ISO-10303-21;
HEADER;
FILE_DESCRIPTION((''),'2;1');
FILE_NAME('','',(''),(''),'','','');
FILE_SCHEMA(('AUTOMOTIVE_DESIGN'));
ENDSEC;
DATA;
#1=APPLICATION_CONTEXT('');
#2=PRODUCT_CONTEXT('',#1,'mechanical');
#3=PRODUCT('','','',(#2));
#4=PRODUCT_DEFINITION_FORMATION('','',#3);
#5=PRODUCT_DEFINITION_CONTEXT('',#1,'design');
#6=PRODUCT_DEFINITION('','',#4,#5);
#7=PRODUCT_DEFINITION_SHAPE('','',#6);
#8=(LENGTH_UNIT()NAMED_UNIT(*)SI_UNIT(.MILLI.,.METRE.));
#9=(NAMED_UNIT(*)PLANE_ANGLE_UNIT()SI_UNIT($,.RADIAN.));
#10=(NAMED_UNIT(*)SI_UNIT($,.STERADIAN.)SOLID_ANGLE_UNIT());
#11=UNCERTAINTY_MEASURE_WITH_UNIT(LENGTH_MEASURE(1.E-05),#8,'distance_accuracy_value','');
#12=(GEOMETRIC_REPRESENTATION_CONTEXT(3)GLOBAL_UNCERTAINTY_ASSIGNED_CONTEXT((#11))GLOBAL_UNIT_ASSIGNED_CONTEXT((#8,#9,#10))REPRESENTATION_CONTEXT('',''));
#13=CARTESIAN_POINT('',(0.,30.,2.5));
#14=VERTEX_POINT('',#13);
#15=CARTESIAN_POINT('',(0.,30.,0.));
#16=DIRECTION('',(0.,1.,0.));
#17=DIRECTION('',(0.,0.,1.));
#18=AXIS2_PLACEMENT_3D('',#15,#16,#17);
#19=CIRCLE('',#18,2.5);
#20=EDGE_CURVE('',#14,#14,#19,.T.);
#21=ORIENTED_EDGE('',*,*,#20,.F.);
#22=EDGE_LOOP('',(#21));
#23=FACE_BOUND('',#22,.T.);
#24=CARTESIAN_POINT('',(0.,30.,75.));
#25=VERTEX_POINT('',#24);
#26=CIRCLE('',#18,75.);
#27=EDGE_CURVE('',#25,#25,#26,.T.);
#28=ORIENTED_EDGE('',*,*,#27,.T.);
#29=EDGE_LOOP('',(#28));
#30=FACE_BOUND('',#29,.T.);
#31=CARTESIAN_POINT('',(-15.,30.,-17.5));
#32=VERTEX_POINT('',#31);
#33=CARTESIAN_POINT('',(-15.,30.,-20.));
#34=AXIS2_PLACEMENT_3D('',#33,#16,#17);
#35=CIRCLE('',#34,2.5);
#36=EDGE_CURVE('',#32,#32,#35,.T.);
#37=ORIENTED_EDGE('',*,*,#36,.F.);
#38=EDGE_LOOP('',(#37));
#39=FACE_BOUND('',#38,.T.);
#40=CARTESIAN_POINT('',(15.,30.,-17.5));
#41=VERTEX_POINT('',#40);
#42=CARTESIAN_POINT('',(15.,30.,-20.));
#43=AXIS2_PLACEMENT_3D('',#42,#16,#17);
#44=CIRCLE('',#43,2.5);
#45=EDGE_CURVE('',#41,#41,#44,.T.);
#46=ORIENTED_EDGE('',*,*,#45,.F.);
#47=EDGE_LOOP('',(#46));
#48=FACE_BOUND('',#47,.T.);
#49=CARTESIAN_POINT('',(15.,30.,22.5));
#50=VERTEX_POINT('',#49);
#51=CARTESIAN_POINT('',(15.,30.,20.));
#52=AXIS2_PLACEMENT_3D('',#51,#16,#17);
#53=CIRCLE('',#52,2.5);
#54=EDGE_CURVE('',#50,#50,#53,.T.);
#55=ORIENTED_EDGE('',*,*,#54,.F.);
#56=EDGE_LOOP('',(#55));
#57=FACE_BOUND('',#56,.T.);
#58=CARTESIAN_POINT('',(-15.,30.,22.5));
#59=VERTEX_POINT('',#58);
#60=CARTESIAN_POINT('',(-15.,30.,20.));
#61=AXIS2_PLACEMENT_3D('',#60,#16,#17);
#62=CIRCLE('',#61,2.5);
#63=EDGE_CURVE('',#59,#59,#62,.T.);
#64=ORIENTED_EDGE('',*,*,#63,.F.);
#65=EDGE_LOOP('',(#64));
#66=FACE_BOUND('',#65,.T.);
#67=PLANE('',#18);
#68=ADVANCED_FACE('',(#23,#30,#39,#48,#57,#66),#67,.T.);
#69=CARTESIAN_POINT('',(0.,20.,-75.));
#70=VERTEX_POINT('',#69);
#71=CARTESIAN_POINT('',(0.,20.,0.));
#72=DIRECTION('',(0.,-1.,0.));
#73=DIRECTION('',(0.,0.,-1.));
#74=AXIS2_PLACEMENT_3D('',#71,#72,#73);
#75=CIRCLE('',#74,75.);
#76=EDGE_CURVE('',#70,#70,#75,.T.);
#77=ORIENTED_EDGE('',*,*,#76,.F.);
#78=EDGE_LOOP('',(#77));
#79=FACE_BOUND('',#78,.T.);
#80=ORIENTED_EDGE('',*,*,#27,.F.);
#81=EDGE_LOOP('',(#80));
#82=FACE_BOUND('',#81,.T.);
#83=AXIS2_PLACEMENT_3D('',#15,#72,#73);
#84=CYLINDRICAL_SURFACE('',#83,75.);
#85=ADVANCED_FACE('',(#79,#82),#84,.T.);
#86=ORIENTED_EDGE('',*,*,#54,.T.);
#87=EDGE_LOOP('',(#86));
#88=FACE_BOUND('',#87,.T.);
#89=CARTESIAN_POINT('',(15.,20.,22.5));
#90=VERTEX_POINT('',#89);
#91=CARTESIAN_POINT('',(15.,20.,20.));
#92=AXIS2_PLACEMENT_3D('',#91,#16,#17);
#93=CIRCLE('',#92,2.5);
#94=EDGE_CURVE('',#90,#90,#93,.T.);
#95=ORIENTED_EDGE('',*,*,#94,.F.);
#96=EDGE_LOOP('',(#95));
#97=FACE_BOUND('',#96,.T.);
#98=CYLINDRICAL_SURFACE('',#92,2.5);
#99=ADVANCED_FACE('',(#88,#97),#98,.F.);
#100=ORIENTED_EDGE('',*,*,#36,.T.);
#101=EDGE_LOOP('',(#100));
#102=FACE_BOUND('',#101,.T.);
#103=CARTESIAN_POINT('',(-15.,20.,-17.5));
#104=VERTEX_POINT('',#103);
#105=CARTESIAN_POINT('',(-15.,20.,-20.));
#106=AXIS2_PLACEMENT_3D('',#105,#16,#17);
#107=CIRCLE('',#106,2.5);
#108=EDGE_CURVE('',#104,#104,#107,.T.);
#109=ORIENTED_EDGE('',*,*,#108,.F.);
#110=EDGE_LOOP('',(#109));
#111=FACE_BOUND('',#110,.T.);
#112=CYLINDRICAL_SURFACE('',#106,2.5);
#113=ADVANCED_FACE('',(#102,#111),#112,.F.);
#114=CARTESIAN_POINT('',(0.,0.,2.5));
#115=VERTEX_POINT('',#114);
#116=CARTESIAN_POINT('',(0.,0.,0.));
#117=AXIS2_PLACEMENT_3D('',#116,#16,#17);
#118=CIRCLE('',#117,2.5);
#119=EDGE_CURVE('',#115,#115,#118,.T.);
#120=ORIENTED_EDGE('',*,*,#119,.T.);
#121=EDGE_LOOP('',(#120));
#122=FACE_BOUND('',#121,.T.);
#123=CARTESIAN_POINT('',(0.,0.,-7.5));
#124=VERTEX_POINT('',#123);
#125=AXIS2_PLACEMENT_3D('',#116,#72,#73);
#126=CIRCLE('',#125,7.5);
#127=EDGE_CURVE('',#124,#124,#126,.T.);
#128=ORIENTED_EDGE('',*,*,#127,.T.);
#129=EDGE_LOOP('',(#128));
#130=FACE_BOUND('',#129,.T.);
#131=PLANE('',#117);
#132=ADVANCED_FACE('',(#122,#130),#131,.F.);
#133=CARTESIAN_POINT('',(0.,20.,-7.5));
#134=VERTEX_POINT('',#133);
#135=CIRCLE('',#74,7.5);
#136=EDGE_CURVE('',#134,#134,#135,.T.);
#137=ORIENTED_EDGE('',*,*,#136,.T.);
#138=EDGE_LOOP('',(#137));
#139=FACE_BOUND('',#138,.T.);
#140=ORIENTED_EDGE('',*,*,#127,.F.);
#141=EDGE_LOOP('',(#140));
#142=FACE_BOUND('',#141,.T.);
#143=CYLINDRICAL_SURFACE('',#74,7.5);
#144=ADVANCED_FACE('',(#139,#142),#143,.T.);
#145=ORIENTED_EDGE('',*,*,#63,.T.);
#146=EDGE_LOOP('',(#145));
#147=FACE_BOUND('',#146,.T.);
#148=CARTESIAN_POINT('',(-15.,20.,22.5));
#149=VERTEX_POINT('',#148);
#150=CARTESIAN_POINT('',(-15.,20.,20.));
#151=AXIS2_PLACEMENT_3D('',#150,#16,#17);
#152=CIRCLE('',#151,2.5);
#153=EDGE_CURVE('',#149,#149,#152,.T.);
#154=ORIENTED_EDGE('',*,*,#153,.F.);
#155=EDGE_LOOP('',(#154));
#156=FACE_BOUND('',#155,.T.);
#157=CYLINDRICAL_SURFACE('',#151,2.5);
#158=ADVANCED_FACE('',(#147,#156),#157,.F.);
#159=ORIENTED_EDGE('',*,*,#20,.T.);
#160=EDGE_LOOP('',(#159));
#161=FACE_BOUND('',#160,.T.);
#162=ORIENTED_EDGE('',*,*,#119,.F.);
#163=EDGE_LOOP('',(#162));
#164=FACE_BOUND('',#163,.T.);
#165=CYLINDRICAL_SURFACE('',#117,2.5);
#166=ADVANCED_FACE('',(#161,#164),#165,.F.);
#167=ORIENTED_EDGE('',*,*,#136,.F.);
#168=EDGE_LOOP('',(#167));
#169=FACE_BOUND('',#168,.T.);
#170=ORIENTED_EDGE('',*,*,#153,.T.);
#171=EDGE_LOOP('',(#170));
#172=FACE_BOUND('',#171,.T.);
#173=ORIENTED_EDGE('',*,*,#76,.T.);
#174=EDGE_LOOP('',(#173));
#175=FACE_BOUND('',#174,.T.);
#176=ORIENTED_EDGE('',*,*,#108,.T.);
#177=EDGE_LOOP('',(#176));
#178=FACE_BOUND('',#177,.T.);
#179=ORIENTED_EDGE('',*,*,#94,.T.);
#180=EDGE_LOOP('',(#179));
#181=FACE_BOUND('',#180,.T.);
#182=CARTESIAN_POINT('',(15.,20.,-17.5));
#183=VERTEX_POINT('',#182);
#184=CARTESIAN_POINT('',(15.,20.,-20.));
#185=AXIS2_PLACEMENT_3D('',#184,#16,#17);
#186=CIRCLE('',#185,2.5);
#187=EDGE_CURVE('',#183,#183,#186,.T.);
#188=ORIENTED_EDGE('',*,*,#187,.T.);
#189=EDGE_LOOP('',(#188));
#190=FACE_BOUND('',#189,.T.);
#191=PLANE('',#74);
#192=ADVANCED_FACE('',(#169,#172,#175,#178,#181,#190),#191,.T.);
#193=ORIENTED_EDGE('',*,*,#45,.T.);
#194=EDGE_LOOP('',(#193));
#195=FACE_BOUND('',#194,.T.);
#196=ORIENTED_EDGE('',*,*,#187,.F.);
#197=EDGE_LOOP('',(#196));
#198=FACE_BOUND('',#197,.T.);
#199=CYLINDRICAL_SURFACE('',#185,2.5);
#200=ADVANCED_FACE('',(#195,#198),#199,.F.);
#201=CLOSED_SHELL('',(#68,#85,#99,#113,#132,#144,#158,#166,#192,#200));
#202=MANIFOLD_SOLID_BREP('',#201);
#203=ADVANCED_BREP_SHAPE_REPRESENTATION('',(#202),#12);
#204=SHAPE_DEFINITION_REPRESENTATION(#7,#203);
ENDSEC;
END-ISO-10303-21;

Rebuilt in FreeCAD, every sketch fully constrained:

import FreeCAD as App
import Part
import Sketcher

doc = App.newDocument("Part")
params = doc.addObject("Spreadsheet::Sheet", "Params")
for row, (alias, value) in enumerate([
    ("sketch1_diameter", "150 mm"),
    ("pad1_length", "30 mm"),
    ("sketch2_diameter", "150 mm"),
    ("sketch2_diameter2", "15 mm"),
    ("pocket1_length", "20 mm"),
    ("sketch3_diameter", "5 mm"),
    ("pocket2_length", "30 mm"),
    ("sketch4_diameter", "5 mm"),
    ("pocket3_length", "10 mm"),
], start=1):
    params.set(f"A{row}", alias)
    params.set(f"B{row}", "=" + value)
    params.setAlias(f"B{row}", alias)

body = doc.addObject("PartDesign::Body", "Body")

sketch1 = body.newObject("Sketcher::SketchObject", "Sketch")
sketch1.AttachmentSupport = (doc.getObject("XZ_Plane"), [""])
sketch1.MapMode = "FlatFace"
sketch1.addGeometry(Part.Circle(App.Vector(0, 0, 0), App.Vector(0, 0, 1), 75), False)
sketch1.addConstraint([
    Sketcher.Constraint("Coincident", 0, 3, -1, 1),
    Sketcher.Constraint("Diameter", 0, 150.0),
])
sketch1.setExpression("Constraints[1]", "Params.sketch1_diameter")
pad1 = body.newObject("PartDesign::Pad", "Pad")
pad1.Profile = sketch1
pad1.setExpression("Length", "Params.pad1_length")
pad1.Reversed = True

sketch2 = body.newObject("Sketcher::SketchObject", "Sketch001")
sketch2.AttachmentSupport = (doc.getObject("XZ_Plane"), [""])
sketch2.MapMode = "FlatFace"
sketch2.addGeometry([
    Part.Circle(App.Vector(0, 0, 0), App.Vector(0, 0, 1), 75),
    Part.Circle(App.Vector(0, 0, 0), App.Vector(0, 0, 1), 7.5),
], False)
sketch2.addConstraint([
    Sketcher.Constraint("Coincident", 0, 3, -1, 1),
    Sketcher.Constraint("Coincident", 1, 3, -1, 1),
    Sketcher.Constraint("Diameter", 0, 150.0),
    Sketcher.Constraint("Diameter", 1, 15.0),
])
sketch2.setExpression("Constraints[2]", "Params.sketch2_diameter")
sketch2.setExpression("Constraints[3]", "Params.sketch2_diameter2")
pocket1 = body.newObject("PartDesign::Pocket", "Pocket")
pocket1.Profile = sketch2
pocket1.setExpression("Length", "Params.pocket1_length")

sketch3 = body.newObject("Sketcher::SketchObject", "Sketch002")
sketch3.AttachmentSupport = (doc.getObject("XZ_Plane"), [""])
sketch3.MapMode = "FlatFace"
sketch3.AttachmentOffset = App.Placement(App.Vector(0, 0, -30), App.Rotation())
sketch3.addGeometry(Part.Circle(App.Vector(0, 0, 0), App.Vector(0, 0, 1), 2.5), False)
sketch3.addConstraint([
    Sketcher.Constraint("Coincident", 0, 3, -1, 1),
    Sketcher.Constraint("Diameter", 0, 5.0),
])
sketch3.setExpression("Constraints[1]", "Params.sketch3_diameter")
pocket2 = body.newObject("PartDesign::Pocket", "Pocket001")
pocket2.Profile = sketch3
pocket2.setExpression("Length", "Params.pocket2_length")
pocket2.Reversed = True

sketch4 = body.newObject("Sketcher::SketchObject", "Sketch003")
sketch4.AttachmentSupport = (doc.getObject("XZ_Plane"), [""])
sketch4.MapMode = "FlatFace"
sketch4.AttachmentOffset = App.Placement(App.Vector(0, 0, -30), App.Rotation())
sketch4.addGeometry([
    Part.Circle(App.Vector(-15, -20, 0), App.Vector(0, 0, 1), 2.5),
    Part.Circle(App.Vector(15, -20, 0), App.Vector(0, 0, 1), 2.5),
    Part.Circle(App.Vector(-15, 20, 0), App.Vector(0, 0, 1), 2.5),
    Part.Circle(App.Vector(15, 20, 0), App.Vector(0, 0, 1), 2.5),
], False)
sketch4.addConstraint([
    Sketcher.Constraint("Equal", 0, 1),
    Sketcher.Constraint("Equal", 1, 2),
    Sketcher.Constraint("Equal", 2, 3),
    Sketcher.Constraint("Symmetric", 1, 3, 2, 3, -1, 1),
    Sketcher.Constraint("Symmetric", 0, 3, 3, 3, -1, 1),
    Sketcher.Constraint("Symmetric", 0, 3, 1, 3, -2),
    Sketcher.Constraint("Diameter", 0, 5.0),
    Sketcher.Constraint("DistanceX", 0, 3, -1, 1, 15.0),
    Sketcher.Constraint("DistanceY", 0, 3, -1, 1, 20.0),
])
sketch4.setExpression("Constraints[6]", "Params.sketch4_diameter")
pocket3 = body.newObject("PartDesign::Pocket", "Pocket002")
pocket3.Profile = sketch4
pocket3.setExpression("Length", "Params.pocket3_length")
pocket3.Reversed = True

doc.recompute()
